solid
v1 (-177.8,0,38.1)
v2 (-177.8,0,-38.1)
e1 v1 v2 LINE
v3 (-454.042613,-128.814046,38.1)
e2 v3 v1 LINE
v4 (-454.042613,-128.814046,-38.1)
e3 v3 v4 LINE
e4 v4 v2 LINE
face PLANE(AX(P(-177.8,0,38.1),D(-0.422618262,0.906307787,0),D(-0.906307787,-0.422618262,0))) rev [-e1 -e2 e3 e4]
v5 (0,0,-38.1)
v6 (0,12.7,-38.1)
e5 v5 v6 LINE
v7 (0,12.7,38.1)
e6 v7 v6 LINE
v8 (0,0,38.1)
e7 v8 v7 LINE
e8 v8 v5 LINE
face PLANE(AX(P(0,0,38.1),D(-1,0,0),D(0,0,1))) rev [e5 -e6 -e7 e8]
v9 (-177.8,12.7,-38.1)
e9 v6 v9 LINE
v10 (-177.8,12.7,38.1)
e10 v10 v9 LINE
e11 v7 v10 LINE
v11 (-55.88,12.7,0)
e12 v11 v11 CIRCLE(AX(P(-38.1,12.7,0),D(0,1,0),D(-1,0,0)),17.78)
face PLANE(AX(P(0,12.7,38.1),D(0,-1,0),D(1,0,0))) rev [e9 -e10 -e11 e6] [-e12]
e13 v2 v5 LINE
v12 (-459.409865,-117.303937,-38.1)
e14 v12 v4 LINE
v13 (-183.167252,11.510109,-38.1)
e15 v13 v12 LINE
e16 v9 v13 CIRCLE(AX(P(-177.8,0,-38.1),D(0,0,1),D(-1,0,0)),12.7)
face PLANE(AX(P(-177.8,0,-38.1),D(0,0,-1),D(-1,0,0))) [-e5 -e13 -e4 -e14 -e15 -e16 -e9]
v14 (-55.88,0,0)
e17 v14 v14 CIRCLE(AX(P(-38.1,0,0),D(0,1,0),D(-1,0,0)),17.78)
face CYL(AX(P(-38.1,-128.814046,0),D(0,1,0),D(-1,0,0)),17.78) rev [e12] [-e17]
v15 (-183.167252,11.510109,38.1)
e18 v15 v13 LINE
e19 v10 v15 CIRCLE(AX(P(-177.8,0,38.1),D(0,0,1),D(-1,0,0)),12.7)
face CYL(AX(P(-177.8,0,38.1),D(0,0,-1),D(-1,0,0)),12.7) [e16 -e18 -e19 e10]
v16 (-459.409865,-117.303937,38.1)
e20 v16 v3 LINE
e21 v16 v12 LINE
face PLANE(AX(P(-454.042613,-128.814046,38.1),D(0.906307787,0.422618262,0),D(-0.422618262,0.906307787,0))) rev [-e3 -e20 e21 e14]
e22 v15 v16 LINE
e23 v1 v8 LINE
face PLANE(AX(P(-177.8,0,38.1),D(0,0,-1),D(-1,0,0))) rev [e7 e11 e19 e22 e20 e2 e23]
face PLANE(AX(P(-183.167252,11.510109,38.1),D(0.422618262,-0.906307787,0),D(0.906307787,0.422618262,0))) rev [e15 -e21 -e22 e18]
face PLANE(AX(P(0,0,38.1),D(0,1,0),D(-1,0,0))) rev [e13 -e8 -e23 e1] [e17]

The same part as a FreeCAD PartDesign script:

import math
import FreeCAD as App
import Part
import Sketcher
Q = App.Units.Quantity

doc = App.newDocument("Part")
body = doc.addObject("PartDesign::Body", "Body")

sketch1 = doc.addObject("Sketcher::SketchObject", "Sketch")
body.addObject(sketch1)
sketch1.AttachmentSupport = (doc.XY_Plane, [""])
sketch1.MapMode = "FlatFace"
sketch1.addGeometry(Part.LineSegment(App.Vector(-178, 0, 0), App.Vector(0, 0, 0)), False)
sketch1.addGeometry(Part.LineSegment(App.Vector(0, 0, 0), App.Vector(0, 13, 0)), False)
sketch1.addGeometry(Part.LineSegment(App.Vector(0, 13, 0), App.Vector(-178, 13, 0)), False)
sketch1.addGeometry(Part.ArcOfCircle(Part.Circle(App.Vector(-178, 0, 0), App.Vector(0, 0, 1), 13), math.radians(90), math.radians(115)), False)
sketch1.addGeometry(Part.LineSegment(App.Vector(-183, 12, 0), App.Vector(-459, -117, 0)), False)
sketch1.addGeometry(Part.LineSegment(App.Vector(-459, -117, 0), App.Vector(-454, -129, 0)), False)
sketch1.addGeometry(Part.LineSegment(App.Vector(-454, -129, 0), App.Vector(-178, 0, 0)), False)
sketch1.addConstraint(Sketcher.Constraint("Coincident", 0, 2, 1, 1))
sketch1.addConstraint(Sketcher.Constraint("Coincident", 1, 2, 2, 1))
sketch1.addConstraint(Sketcher.Constraint("Tangent", 2, 2, 3, 1))
sketch1.addConstraint(Sketcher.Constraint("Tangent", 3, 2, 4, 1))
sketch1.addConstraint(Sketcher.Constraint("Coincident", 4, 2, 5, 1))
sketch1.addConstraint(Sketcher.Constraint("Coincident", 5, 2, 6, 1))
sketch1.addConstraint(Sketcher.Constraint("Coincident", 6, 2, 0, 1))
sketch1.addConstraint(Sketcher.Constraint("Horizontal", 0))
sketch1.addConstraint(Sketcher.Constraint("Vertical", 1))
sketch1.addConstraint(Sketcher.Constraint("Horizontal", 2))
sketch1.addConstraint(Sketcher.Constraint("Coincident", 0, 2, -1, 1))
sketch1.addConstraint(Sketcher.Constraint("Coincident", 6, 2, 3, 3))
sketch1.addConstraint(Sketcher.Constraint("Perpendicular", 4, 5))
sketch1.addConstraint(Sketcher.Constraint("Perpendicular", 5, 6))
sketch1.addConstraint(Sketcher.Constraint("Radius", 3, Q("0.5 in")))
sketch1.addConstraint(Sketcher.Constraint("DistanceX", 0, 1, 0, 2, Q("7 in")))
sketch1.addConstraint(Sketcher.Constraint("Distance", 4, Q("12 in")))
sketch1.addConstraint(Sketcher.Constraint("Angle", 4, Q("-155 deg")))
pad1 = doc.addObject("PartDesign::Pad", "Pad")
body.addObject(pad1)
pad1.Profile = sketch1
pad1.Length = Q("3 in")
pad1.Midplane = True

sketch2 = doc.addObject("Sketcher::SketchObject", "Sketch001")
body.addObject(sketch2)
sketch2.AttachmentSupport = (doc.XZ_Plane, [""])
sketch2.MapMode = "FlatFace"
sketch2.AttachmentOffset = App.Placement(App.Vector(0, 0, -0.5 * 25.4), App.Rotation())
sketch2.addGeometry(Part.Circle(App.Vector(-38, 0, 0), App.Vector(0, 0, 1), 18), False)
sketch2.addConstraint(Sketcher.Constraint("PointOnObject", 0, 3, -1))
sketch2.addConstraint(Sketcher.Constraint("Diameter", 0, Q("1.4 in")))
sketch2.addConstraint(Sketcher.Constraint("DistanceX", 0, 3, -1, 1, Q("1.5 in")))
pocket1 = doc.addObject("PartDesign::Pocket", "Pocket")
body.addObject(pocket1)
pocket1.Profile = sketch2
pocket1.Type = "ThroughAll"
pocket1.Reversed = True

doc.recompute()
